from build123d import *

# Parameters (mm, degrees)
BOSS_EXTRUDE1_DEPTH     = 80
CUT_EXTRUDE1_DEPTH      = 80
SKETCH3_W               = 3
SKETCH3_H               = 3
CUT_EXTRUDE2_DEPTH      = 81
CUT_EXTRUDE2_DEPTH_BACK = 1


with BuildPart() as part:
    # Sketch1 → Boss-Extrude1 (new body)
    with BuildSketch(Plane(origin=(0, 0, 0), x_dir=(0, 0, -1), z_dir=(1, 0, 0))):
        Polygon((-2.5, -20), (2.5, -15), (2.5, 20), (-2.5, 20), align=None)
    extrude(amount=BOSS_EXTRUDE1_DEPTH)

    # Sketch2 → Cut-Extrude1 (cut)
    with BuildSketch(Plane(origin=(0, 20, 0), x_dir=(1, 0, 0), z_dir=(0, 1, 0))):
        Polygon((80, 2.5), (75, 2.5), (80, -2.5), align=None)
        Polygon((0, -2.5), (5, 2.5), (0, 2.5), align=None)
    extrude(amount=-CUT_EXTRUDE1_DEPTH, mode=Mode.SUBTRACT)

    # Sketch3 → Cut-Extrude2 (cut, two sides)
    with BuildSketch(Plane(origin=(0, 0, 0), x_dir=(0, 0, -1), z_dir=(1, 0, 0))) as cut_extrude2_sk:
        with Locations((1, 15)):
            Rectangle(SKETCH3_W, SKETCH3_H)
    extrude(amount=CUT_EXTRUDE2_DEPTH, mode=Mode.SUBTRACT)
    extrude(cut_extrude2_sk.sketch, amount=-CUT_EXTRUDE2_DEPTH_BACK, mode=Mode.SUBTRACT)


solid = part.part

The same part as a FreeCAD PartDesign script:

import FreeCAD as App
import Part
import Sketcher
Q = App.Units.Quantity

doc = App.newDocument("Part")
body = doc.addObject("PartDesign::Body", "Body")

# Sketch on YZ plane
sketch1 = doc.addObject("Sketcher::SketchObject", "Sketch")
body.addObject(sketch1)
sketch1.AttachmentSupport = (doc.YZ_Plane, [""])
sketch1.MapMode = "FlatFace"
sketch1.addGeometry([
    Part.LineSegment(App.Vector(-20, 2.5, 0), App.Vector(-15, -2.5, 0)),
    Part.LineSegment(App.Vector(-15, -2.5, 0), App.Vector(20, -2.5, 0)),
    Part.LineSegment(App.Vector(20, -2.5, 0), App.Vector(20, 2.5, 0)),
    Part.LineSegment(App.Vector(20, 2.5, 0), App.Vector(-20, 2.5, 0)),
], False)
sketch1.addConstraint([
    Sketcher.Constraint("Coincident", 0, 2, 1, 1),
    Sketcher.Constraint("Coincident", 1, 2, 2, 1),
    Sketcher.Constraint("Coincident", 2, 2, 3, 1),
    Sketcher.Constraint("Coincident", 3, 2, 0, 1),
    Sketcher.Constraint("Horizontal", 1),
    Sketcher.Constraint("Vertical", 2),
    Sketcher.Constraint("Horizontal", 3),
    Sketcher.Constraint("Symmetric", 1, 2, 3, 2, -1, 1),
    Sketcher.Constraint("DistanceX", 1, 1, 1, 2, Q("35 mm")),
    Sketcher.Constraint("DistanceX", 3, 2, 3, 1, Q("40 mm")),
    Sketcher.Constraint("DistanceY", 2, 1, 2, 2, Q("5 mm")),
])
pad1 = doc.addObject("PartDesign::Pad", "Pad")
body.addObject(pad1)
pad1.Profile = sketch1
pad1.Length = 80

# Sketch on XZ plane
sketch2 = doc.addObject("Sketcher::SketchObject", "Sketch001")
body.addObject(sketch2)
sketch2.AttachmentSupport = (doc.XZ_Plane, [""])
sketch2.MapMode = "FlatFace"
sketch2.AttachmentOffset = App.Placement(App.Vector(0, 0, -20), App.Rotation())
sketch2.addGeometry([
    Part.LineSegment(App.Vector(80, -2.5, 0), App.Vector(75, -2.5, 0)),  # 0
    Part.LineSegment(App.Vector(75, -2.5, 0), App.Vector(80, 2.5, 0)),  # 1
    Part.LineSegment(App.Vector(80, 2.5, 0), App.Vector(80, -2.5, 0)),  # 2
    Part.LineSegment(App.Vector(0, 2.5, 0), App.Vector(5, -2.5, 0)),  # 3
    Part.LineSegment(App.Vector(5, -2.5, 0), App.Vector(0, -2.5, 0)),  # 4
    Part.LineSegment(App.Vector(0, -2.5, 0), App.Vector(0, 2.5, 0)),  # 5
], False)
sketch2.addConstraint([
    Sketcher.Constraint("Coincident", 0, 2, 1, 1),
    Sketcher.Constraint("Coincident", 1, 2, 2, 1),
    Sketcher.Constraint("Coincident", 2, 2, 0, 1),
    Sketcher.Constraint("Coincident", 3, 2, 4, 1),
    Sketcher.Constraint("Coincident", 4, 2, 5, 1),
    Sketcher.Constraint("Coincident", 5, 2, 3, 1),
    Sketcher.Constraint("Horizontal", 0),
    Sketcher.Constraint("Vertical", 2),
    Sketcher.Constraint("Horizontal", 4),
    Sketcher.Constraint("Vertical", 5),
    Sketcher.Constraint("Symmetric", 4, 2, 5, 2, -1, 1),
    Sketcher.Constraint("Perpendicular", 1, 3),
    Sketcher.Constraint("Horizontal", 2, 2, 3, 2),
    Sketcher.Constraint("Horizontal", 1, 2, 5, 2),
    Sketcher.Constraint("Equal", 0, 4),
    Sketcher.Constraint("DistanceX", 0, 2, 0, 1, Q("5 mm")),
    Sketcher.Constraint("DistanceX", -1, 1, 0, 2, Q("75 mm")),
])
pocket1 = doc.addObject("PartDesign::Pocket", "Pocket")
body.addObject(pocket1)
pocket1.Profile = sketch2
pocket1.Length = 80
pocket1.Reversed = True

# Sketch on YZ plane
sketch3 = doc.addObject("Sketcher::SketchObject", "Sketch002")
body.addObject(sketch3)
sketch3.AttachmentSupport = (doc.YZ_Plane, [""])
sketch3.MapMode = "FlatFace"
sketch3.addGeometry([
    Part.LineSegment(App.Vector(16.5, 0.5, 0), App.Vector(13.5, 0.5, 0)),
    Part.LineSegment(App.Vector(13.5, 0.5, 0), App.Vector(13.5, -2.5, 0)),
    Part.LineSegment(App.Vector(13.5, -2.5, 0), App.Vector(16.5, -2.5, 0)),
    Part.LineSegment(App.Vector(16.5, -2.5, 0), App.Vector(16.5, 0.5, 0)),
], False)
sketch3.addConstraint([
    Sketcher.Constraint("Coincident", 0, 2, 1, 1),
    Sketcher.Constraint("Coincident", 1, 2, 2, 1),
    Sketcher.Constraint("Coincident", 2, 2, 3, 1),
    Sketcher.Constraint("Coincident", 3, 2, 0, 1),
    Sketcher.Constraint("Horizontal", 0),
    Sketcher.Constraint("Vertical", 1),
    Sketcher.Constraint("Horizontal", 2),
    Sketcher.Constraint("Vertical", 3),
    Sketcher.Constraint("Equal", 2, 1),
    Sketcher.Constraint("DistanceX", 0, 2, 0, 1, Q("3 mm")),
    Sketcher.Constraint("DistanceX", -1, 1, 0, 2, Q("13.5 mm")),
    Sketcher.Constraint("DistanceY", -1, 1, 0, 2, Q("0.5 mm")),
])
pocket2 = doc.addObject("PartDesign::Pocket", "Pocket001")
body.addObject(pocket2)
pocket2.Profile = sketch3
pocket2.Type = "ThroughAll"
pocket2.Midplane = True

doc.recompute()
